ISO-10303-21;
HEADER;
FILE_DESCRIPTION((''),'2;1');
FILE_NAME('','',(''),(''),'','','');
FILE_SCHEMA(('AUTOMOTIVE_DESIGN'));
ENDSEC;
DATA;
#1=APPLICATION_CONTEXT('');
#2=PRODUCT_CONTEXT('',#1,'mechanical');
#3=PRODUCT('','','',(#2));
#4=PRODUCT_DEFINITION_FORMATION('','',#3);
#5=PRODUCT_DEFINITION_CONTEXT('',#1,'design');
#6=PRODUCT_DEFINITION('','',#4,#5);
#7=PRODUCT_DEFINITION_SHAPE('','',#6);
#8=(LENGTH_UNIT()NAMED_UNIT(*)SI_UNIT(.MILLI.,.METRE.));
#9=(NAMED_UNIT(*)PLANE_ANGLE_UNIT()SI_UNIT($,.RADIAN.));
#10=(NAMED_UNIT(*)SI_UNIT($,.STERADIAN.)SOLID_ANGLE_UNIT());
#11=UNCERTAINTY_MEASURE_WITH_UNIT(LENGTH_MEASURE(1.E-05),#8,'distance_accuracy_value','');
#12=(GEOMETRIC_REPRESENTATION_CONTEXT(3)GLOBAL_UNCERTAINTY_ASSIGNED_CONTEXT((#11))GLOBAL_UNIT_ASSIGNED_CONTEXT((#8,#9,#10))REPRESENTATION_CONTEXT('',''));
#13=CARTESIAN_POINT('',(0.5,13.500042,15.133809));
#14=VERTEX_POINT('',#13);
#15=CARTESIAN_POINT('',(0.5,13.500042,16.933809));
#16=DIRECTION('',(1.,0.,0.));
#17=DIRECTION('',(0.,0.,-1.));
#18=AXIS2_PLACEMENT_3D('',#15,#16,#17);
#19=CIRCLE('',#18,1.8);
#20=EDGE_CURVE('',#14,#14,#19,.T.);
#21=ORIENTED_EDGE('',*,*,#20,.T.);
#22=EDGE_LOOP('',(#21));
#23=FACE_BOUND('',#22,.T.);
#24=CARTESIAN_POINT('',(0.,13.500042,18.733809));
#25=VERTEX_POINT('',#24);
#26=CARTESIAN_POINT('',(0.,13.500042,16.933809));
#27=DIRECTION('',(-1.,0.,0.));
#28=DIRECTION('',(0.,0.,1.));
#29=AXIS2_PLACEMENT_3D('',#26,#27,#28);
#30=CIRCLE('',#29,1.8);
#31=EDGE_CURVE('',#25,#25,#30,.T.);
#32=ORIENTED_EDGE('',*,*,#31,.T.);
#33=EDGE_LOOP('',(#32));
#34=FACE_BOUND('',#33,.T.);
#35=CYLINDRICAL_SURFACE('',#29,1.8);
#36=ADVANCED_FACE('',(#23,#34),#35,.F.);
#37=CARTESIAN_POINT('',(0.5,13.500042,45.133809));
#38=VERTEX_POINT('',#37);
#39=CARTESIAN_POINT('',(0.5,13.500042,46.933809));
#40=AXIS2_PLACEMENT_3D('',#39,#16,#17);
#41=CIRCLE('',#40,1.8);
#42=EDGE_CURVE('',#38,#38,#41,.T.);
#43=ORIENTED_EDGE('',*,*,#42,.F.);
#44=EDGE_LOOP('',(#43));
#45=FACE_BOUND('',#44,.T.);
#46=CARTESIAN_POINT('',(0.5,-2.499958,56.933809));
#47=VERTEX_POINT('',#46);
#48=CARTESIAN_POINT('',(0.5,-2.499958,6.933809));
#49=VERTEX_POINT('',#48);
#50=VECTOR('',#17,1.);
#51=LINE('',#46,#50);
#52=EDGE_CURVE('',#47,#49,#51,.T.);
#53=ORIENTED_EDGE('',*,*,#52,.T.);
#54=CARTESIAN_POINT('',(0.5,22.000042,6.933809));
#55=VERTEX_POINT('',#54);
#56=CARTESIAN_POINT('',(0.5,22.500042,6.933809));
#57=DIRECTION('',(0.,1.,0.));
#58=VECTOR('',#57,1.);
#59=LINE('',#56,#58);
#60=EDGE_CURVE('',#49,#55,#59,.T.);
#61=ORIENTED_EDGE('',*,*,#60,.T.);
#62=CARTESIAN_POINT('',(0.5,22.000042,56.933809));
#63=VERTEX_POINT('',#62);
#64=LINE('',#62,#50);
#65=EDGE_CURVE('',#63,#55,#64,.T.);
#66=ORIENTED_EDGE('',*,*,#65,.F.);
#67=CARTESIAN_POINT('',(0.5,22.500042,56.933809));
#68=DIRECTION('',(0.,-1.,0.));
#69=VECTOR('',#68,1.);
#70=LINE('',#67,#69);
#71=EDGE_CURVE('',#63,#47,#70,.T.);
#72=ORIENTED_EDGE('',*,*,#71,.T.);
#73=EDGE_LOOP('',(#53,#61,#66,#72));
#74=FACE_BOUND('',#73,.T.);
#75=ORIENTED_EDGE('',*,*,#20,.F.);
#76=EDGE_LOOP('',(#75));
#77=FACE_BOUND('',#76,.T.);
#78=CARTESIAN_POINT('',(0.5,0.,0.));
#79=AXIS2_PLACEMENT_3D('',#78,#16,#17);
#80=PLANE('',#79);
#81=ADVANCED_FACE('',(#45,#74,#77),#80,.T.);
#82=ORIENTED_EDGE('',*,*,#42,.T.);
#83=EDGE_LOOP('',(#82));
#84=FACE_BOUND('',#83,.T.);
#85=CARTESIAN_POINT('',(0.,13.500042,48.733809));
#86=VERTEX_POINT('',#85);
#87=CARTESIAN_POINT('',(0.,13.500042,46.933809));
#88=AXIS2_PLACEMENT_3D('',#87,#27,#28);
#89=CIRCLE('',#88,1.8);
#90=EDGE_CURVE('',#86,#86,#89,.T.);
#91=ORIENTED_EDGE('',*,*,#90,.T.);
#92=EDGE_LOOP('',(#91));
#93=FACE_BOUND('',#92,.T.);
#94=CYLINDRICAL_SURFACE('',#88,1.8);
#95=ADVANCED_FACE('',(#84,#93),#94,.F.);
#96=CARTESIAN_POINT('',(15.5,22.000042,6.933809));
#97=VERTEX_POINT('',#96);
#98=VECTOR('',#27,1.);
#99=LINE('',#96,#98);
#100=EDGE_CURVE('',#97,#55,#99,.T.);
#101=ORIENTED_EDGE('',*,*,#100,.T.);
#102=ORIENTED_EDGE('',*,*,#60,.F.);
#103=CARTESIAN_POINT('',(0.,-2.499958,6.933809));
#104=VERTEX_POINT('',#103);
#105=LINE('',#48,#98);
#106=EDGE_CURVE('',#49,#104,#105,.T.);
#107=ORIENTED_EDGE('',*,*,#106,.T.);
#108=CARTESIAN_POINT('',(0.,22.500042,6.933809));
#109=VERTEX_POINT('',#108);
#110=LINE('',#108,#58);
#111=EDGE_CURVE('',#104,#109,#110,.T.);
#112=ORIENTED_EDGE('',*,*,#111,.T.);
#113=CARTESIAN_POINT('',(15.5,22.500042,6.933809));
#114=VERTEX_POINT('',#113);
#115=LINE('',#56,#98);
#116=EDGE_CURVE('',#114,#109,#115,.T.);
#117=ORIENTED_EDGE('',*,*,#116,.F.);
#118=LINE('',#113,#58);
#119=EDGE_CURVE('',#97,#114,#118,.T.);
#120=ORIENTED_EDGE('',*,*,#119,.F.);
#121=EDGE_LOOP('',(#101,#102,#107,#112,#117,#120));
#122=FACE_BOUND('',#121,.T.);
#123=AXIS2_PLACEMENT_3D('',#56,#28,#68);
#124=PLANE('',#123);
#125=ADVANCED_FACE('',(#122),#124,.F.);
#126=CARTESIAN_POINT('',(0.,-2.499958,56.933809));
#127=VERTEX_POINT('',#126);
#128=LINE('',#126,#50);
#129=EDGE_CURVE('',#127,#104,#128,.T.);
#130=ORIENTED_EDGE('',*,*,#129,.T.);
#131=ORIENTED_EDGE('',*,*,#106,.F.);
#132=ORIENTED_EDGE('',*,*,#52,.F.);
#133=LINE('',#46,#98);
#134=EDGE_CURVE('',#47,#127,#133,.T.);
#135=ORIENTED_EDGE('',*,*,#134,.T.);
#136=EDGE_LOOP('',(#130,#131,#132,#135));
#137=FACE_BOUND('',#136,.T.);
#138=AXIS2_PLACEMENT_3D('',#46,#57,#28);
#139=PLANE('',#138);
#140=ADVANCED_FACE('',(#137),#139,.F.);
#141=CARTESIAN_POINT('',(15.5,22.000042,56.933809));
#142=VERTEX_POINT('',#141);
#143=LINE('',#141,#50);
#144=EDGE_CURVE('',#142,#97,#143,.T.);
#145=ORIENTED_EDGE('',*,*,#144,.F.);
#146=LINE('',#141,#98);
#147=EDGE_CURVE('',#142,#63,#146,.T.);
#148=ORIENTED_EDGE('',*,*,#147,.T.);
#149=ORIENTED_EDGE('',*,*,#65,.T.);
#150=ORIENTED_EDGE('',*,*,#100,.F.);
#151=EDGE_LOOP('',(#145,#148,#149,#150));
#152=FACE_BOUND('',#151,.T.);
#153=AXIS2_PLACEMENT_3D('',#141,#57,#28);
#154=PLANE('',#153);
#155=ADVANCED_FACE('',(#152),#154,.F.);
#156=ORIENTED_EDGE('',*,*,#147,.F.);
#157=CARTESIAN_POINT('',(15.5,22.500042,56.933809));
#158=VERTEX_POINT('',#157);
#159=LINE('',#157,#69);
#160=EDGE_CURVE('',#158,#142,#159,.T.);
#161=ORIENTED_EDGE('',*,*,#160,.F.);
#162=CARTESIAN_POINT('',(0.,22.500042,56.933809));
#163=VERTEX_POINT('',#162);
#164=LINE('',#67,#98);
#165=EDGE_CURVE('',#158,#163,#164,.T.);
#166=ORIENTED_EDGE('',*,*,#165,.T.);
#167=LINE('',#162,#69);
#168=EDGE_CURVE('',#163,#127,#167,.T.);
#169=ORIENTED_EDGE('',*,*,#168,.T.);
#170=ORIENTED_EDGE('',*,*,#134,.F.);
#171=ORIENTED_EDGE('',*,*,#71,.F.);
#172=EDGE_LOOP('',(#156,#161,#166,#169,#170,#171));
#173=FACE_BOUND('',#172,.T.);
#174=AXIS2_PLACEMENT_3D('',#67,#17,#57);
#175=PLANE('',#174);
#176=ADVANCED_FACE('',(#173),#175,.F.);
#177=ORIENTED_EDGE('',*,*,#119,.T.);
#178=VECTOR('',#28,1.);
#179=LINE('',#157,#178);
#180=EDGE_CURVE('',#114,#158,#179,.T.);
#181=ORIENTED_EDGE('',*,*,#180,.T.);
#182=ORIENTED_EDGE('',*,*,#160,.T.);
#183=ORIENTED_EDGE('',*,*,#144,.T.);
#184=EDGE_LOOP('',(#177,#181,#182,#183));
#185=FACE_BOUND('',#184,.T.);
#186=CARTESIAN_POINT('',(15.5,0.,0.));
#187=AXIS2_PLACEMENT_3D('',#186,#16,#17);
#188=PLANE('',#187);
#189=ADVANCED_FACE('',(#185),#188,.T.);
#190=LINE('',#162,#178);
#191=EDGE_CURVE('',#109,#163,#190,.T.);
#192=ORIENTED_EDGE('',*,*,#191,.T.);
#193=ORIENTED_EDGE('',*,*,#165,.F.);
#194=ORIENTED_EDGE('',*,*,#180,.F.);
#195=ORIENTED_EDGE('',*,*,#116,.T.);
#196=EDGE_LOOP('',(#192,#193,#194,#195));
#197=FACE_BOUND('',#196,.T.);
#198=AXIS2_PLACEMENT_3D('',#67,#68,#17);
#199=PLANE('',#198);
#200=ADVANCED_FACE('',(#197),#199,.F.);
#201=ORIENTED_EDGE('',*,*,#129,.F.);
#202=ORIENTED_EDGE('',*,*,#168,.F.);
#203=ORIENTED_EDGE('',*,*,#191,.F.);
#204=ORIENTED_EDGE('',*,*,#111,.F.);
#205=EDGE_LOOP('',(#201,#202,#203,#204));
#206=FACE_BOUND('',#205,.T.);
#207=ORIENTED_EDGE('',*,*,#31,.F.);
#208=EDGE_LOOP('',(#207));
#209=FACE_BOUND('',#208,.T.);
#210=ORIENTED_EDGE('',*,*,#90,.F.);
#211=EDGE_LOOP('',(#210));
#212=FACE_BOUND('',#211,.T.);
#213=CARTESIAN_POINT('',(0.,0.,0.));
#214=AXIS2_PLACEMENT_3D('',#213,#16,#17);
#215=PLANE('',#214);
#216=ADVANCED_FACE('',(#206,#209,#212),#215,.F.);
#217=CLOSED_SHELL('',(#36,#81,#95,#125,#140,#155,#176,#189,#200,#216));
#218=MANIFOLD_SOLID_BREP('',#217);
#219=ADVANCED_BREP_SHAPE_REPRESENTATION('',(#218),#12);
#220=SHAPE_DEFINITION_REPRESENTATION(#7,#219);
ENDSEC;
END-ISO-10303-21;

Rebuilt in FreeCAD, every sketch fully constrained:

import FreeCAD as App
import Part
import Sketcher
from FreeCAD import Vector
Q = App.Units.Quantity

doc = App.newDocument("Part")
params = doc.addObject("Spreadsheet::Sheet", "Params")
for row, (alias, value) in enumerate([
    ("sketch1_width", "25 mm"),
    ("sketch1_height", "50 mm"),
    ("pad1_length", "0.5 mm"),
    ("sketch2_height", "50 mm"),
    ("sketch2_width", "0.5 mm"),
    ("pad2_length", "15 mm"),
    ("sketch3_diameter", "3.6 mm"),
    ("hole_diameter", "3.6 mm"),
    ("hole_depth", "10 mm"),
], start=1):
    params.set(f"A{row}", alias)
    params.set(f"B{row}", "=" + value)
    params.setAlias(f"B{row}", alias)

body = doc.addObject("PartDesign::Body", "Body")

# Sketch on YZ plane
sketch1 = body.newObject("Sketcher::SketchObject", "Sketch")
sketch1.AttachmentSupport = (doc.getObject("YZ_Plane"), [""])
sketch1.MapMode = "FlatFace"
sketch1.addGeometry(Part.LineSegment(Vector(22.500042, 56.933809, 0), Vector(-2.499958, 56.933809, 0)), False)
sketch1.addGeometry(Part.LineSegment(Vector(-2.499958, 56.933809, 0), Vector(-2.499958, 6.933809, 0)), False)
sketch1.addGeometry(Part.LineSegment(Vector(-2.499958, 6.933809, 0), Vector(22.500042, 6.933809, 0)), False)
sketch1.addGeometry(Part.LineSegment(Vector(22.500042, 6.933809, 0), Vector(22.500042, 56.933809, 0)), False)
sketch1.addConstraint(Sketcher.Constraint("Coincident", 0, 2, 1, 1))
sketch1.addConstraint(Sketcher.Constraint("Coincident", 1, 2, 2, 1))
sketch1.addConstraint(Sketcher.Constraint("Coincident", 2, 2, 3, 1))
sketch1.addConstraint(Sketcher.Constraint("Coincident", 3, 2, 0, 1))
sketch1.addConstraint(Sketcher.Constraint("Horizontal", 0))
sketch1.addConstraint(Sketcher.Constraint("Vertical", 1))
sketch1.addConstraint(Sketcher.Constraint("Horizontal", 2))
sketch1.addConstraint(Sketcher.Constraint("Vertical", 3))
sketch1.addConstraint(Sketcher.Constraint("DistanceX", 0, 2, 0, 1, Q("25 mm")))
sketch1.addConstraint(Sketcher.Constraint("DistanceY", 1, 2, 1, 1, Q("50 mm")))
sketch1.addConstraint(Sketcher.Constraint("DistanceY", -1, 1, 0, 2, Q("56.933809 mm")))
sketch1.addConstraint(Sketcher.Constraint("DistanceX", 0, 2, -1, 1, Q("2.499958 mm")))
sketch1.setExpression("Constraints[8]", "Params.sketch1_width")
sketch1.setExpression("Constraints[9]", "Params.sketch1_height")
pad1 = body.newObject("PartDesign::Pad", "Pad")
pad1.Profile = sketch1
pad1.setExpression("Length", "Params.pad1_length")

# Sketch on YZ plane
sketch2 = body.newObject("Sketcher::SketchObject", "Sketch001")
sketch2.AttachmentSupport = (doc.getObject("YZ_Plane"), [""])
sketch2.MapMode = "FlatFace"
sketch2.AttachmentOffset = App.Placement(Vector(0, 0, 0.5), App.Rotation())
sketch2.addGeometry(Part.LineSegment(Vector(22.500042, 56.933809, 0), Vector(22.000042, 56.933809, 0)), False)
sketch2.addGeometry(Part.LineSegment(Vector(22.000042, 56.933809, 0), Vector(22.000042, 6.933809, 0)), False)
sketch2.addGeometry(Part.LineSegment(Vector(22.000042, 6.933809, 0), Vector(22.500042, 6.933809, 0)), False)
sketch2.addGeometry(Part.LineSegment(Vector(22.500042, 6.933809, 0), Vector(22.500042, 56.933809, 0)), False)
sketch2.addConstraint(Sketcher.Constraint("Coincident", 0, 2, 1, 1))
sketch2.addConstraint(Sketcher.Constraint("Coincident", 1, 2, 2, 1))
sketch2.addConstraint(Sketcher.Constraint("Coincident", 2, 2, 3, 1))
sketch2.addConstraint(Sketcher.Constraint("Coincident", 3, 2, 0, 1))
sketch2.addConstraint(Sketcher.Constraint("Horizontal", 0))
sketch2.addConstraint(Sketcher.Constraint("Vertical", 1))
sketch2.addConstraint(Sketcher.Constraint("Horizontal", 2))
sketch2.addConstraint(Sketcher.Constraint("Vertical", 3))
sketch2.addConstraint(Sketcher.Constraint("DistanceY", 1, 2, 1, 1, Q("50 mm")))
sketch2.addConstraint(Sketcher.Constraint("DistanceX", 0, 2, 0, 1, Q("0.5 mm")))
sketch2.addConstraint(Sketcher.Constraint("DistanceY", -1, 1, 0, 2, Q("56.933809 mm")))
sketch2.addConstraint(Sketcher.Constraint("DistanceX", -1, 1, 0, 2, Q("22.000042 mm")))
sketch2.setExpression("Constraints[8]", "Params.sketch2_height")
sketch2.setExpression("Constraints[9]", "Params.sketch2_width")
pad2 = body.newObject("PartDesign::Pad", "Pad001")
pad2.Profile = sketch2
pad2.setExpression("Length", "Params.pad2_length")

# Sketch on YZ plane
sketch3 = body.newObject("Sketcher::SketchObject", "Sketch002")
sketch3.AttachmentSupport = (doc.getObject("YZ_Plane"), [""])
sketch3.MapMode = "FlatFace"
sketch3.addGeometry(Part.Circle(Vector(13.500042, 16.933809, 0), Vector(0, 0, 1), 1.8), False)
sketch3.addGeometry(Part.Circle(Vector(13.500042, 46.933809, 0), Vector(0, 0, 1), 1.8), False)
sketch3.addConstraint(Sketcher.Constraint("Equal", 0, 1))
sketch3.addConstraint(Sketcher.Constraint("Vertical", 0, 3, 1, 3))
sketch3.addConstraint(Sketcher.Constraint("Diameter", 0, Q("3.6 mm")))
sketch3.addConstraint(Sketcher.Constraint("DistanceY", 0, 3, 1, 3, Q("30 mm")))
sketch3.addConstraint(Sketcher.Constraint("DistanceY", -1, 1, 0, 3, Q("16.933809 mm")))
sketch3.addConstraint(Sketcher.Constraint("DistanceX", -1, 1, 0, 3, Q("13.500042 mm")))
sketch3.setExpression("Constraints[2]", "Params.sketch3_diameter")
doc.recompute()
hole = body.newObject("PartDesign::Hole", "Hole")
hole.Profile = sketch3
hole.ThreadType = "None"
hole.setExpression("Diameter", "Params.hole_diameter")
hole.DepthType = "Dimension"
hole.setExpression("Depth", "Params.hole_depth")
hole.DrillPoint = "Angled"
hole.DrillPointAngle = 118
hole.Reversed = True

doc.recompute()
